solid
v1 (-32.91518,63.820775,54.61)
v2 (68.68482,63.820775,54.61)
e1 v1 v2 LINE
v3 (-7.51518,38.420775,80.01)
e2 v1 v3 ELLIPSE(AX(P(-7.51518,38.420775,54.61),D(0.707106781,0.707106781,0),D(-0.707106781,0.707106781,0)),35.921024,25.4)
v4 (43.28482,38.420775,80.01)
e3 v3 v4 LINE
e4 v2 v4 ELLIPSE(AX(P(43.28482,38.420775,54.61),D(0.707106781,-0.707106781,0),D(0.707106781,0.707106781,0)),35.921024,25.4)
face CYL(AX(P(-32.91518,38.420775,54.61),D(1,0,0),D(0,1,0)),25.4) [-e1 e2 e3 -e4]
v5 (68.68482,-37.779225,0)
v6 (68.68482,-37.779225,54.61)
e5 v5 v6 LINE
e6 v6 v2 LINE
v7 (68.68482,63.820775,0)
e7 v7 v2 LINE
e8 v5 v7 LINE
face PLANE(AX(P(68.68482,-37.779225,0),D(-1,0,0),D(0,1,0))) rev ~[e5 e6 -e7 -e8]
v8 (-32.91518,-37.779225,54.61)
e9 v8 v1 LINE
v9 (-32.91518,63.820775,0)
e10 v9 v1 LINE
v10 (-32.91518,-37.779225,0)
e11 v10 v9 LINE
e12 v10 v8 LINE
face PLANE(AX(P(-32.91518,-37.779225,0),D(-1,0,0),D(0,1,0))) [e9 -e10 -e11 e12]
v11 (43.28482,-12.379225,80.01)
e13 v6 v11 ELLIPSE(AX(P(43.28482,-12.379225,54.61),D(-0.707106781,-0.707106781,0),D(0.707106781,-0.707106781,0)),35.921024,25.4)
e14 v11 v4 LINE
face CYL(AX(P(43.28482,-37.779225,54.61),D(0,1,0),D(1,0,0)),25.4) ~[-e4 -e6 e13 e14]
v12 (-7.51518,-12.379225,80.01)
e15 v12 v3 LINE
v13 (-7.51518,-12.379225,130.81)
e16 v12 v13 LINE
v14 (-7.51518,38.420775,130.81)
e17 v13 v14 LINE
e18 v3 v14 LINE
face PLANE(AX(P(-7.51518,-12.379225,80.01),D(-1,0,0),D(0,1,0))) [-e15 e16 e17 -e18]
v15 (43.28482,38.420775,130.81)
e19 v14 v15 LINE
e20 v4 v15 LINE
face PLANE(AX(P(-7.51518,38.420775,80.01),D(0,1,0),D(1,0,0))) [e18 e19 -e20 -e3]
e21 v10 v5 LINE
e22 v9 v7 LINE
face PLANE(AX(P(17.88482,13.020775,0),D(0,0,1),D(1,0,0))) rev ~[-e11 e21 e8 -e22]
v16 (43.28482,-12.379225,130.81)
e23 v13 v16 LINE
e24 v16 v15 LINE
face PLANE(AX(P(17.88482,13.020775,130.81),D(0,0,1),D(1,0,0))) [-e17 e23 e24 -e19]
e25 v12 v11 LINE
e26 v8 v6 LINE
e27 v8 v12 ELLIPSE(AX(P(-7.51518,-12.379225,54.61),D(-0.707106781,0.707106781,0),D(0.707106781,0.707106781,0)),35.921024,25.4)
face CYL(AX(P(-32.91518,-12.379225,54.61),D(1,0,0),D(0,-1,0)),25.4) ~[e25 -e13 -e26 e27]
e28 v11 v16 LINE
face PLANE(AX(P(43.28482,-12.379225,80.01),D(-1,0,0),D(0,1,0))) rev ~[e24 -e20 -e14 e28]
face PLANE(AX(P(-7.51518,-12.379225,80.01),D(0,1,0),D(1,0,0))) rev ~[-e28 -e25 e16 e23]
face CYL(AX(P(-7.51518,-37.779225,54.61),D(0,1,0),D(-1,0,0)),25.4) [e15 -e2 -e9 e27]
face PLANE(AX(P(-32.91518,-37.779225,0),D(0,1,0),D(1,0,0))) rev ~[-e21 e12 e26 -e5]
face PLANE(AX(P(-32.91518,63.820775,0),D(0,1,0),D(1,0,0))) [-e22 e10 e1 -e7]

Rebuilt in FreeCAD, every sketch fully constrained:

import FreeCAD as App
import Part
import Sketcher
from FreeCAD import Vector
Q = App.Units.Quantity


def edges_at(feature, points):
    """Names of the edges that pass closest to the given points."""
    edges = feature.Shape.Edges
    near = lambda p: min(range(len(edges)), key=lambda i: edges[i].distToShape(Part.Vertex(*p))[0])
    return sorted({f"Edge{near(p) + 1}" for p in points})

doc = App.newDocument("Part")
body = doc.addObject("PartDesign::Body", "Body")

# Sketch on XY plane
sketch1 = body.newObject("Sketcher::SketchObject", "Sketch")
sketch1.AttachmentSupport = (doc.getObject("XY_Plane"), [""])
sketch1.MapMode = "FlatFace"
sketch1.addGeometry(Part.LineSegment(Vector(-33, 64, 0), Vector(-33, -38, 0)), False)
sketch1.addGeometry(Part.LineSegment(Vector(-33, -38, 0), Vector(69, -38, 0)), False)
sketch1.addGeometry(Part.LineSegment(Vector(69, -38, 0), Vector(69, 64, 0)), False)
sketch1.addGeometry(Part.LineSegment(Vector(69, 64, 0), Vector(-33, 64, 0)), False)
sketch1.addConstraint(Sketcher.Constraint("Coincident", 0, 2, 1, 1))
sketch1.addConstraint(Sketcher.Constraint("Coincident", 1, 2, 2, 1))
sketch1.addConstraint(Sketcher.Constraint("Coincident", 2, 2, 3, 1))
sketch1.addConstraint(Sketcher.Constraint("Coincident", 3, 2, 0, 1))
sketch1.addConstraint(Sketcher.Constraint("Vertical", 0))
sketch1.addConstraint(Sketcher.Constraint("Horizontal", 1))
sketch1.addConstraint(Sketcher.Constraint("Vertical", 2))
sketch1.addConstraint(Sketcher.Constraint("Horizontal", 3))
sketch1.addConstraint(Sketcher.Constraint("Equal", 3, 0))
sketch1.addConstraint(Sketcher.Constraint("DistanceX", 1, 1, 1, 2, Q("4 in")))
sketch1.addConstraint(Sketcher.Constraint("DistanceX", 0, 2, -1, 1, Q("32.91518 mm")))
sketch1.addConstraint(Sketcher.Constraint("DistanceY", 0, 2, -1, 1, Q("37.779225 mm")))
pad1 = body.newObject("PartDesign::Pad", "Pad")
pad1.Profile = sketch1
pad1.Length = Q("3.15 in")
doc.recompute()

fillet = body.newObject("PartDesign::Fillet", "Fillet")
fillet.Base = (pad1, edges_at(pad1, [
    (17.885, -37.779, 80.01),
    (-32.915, 13.021, 80.01),
    (17.885, 63.821, 80.01),
    (68.685, 13.021, 80.01),
]))
fillet.Radius = Q("1 in")

# Sketch on XY plane
sketch2 = body.newObject("Sketcher::SketchObject", "Sketch001")
sketch2.AttachmentSupport = (doc.getObject("XY_Plane"), [""])
sketch2.MapMode = "FlatFace"
sketch2.AttachmentOffset = App.Placement(Vector(0, 0, 3.15 * 25.4), App.Rotation())
sketch2.addGeometry(Part.LineSegment(Vector(-8, 38, 0), Vector(-8, -12, 0)), False)
sketch2.addGeometry(Part.LineSegment(Vector(-8, -12, 0), Vector(43, -12, 0)), False)
sketch2.addGeometry(Part.LineSegment(Vector(43, -12, 0), Vector(43, 38, 0)), False)
sketch2.addGeometry(Part.LineSegment(Vector(43, 38, 0), Vector(-8, 38, 0)), False)
sketch2.addConstraint(Sketcher.Constraint("Coincident", 0, 2, 1, 1))
sketch2.addConstraint(Sketcher.Constraint("Coincident", 1, 2, 2, 1))
sketch2.addConstraint(Sketcher.Constraint("Coincident", 2, 2, 3, 1))
sketch2.addConstraint(Sketcher.Constraint("Coincident", 3, 2, 0, 1))
sketch2.addConstraint(Sketcher.Constraint("Vertical", 0))
sketch2.addConstraint(Sketcher.Constraint("Horizontal", 1))
sketch2.addConstraint(Sketcher.Constraint("Vertical", 2))
sketch2.addConstraint(Sketcher.Constraint("Horizontal", 3))
sketch2.addConstraint(Sketcher.Constraint("Equal", 3, 0))
sketch2.addConstraint(Sketcher.Constraint("DistanceX", 1, 1, 1, 2, Q("2 in")))
sketch2.addConstraint(Sketcher.Constraint("DistanceX", 0, 2, -1, 1, Q("7.51518 mm")))
sketch2.addConstraint(Sketcher.Constraint("DistanceY", 0, 2, -1, 1, Q("12.379225 mm")))
pad2 = body.newObject("PartDesign::Pad", "Pad001")
pad2.Profile = sketch2
pad2.Length = Q("2 in")

doc.recompute()
